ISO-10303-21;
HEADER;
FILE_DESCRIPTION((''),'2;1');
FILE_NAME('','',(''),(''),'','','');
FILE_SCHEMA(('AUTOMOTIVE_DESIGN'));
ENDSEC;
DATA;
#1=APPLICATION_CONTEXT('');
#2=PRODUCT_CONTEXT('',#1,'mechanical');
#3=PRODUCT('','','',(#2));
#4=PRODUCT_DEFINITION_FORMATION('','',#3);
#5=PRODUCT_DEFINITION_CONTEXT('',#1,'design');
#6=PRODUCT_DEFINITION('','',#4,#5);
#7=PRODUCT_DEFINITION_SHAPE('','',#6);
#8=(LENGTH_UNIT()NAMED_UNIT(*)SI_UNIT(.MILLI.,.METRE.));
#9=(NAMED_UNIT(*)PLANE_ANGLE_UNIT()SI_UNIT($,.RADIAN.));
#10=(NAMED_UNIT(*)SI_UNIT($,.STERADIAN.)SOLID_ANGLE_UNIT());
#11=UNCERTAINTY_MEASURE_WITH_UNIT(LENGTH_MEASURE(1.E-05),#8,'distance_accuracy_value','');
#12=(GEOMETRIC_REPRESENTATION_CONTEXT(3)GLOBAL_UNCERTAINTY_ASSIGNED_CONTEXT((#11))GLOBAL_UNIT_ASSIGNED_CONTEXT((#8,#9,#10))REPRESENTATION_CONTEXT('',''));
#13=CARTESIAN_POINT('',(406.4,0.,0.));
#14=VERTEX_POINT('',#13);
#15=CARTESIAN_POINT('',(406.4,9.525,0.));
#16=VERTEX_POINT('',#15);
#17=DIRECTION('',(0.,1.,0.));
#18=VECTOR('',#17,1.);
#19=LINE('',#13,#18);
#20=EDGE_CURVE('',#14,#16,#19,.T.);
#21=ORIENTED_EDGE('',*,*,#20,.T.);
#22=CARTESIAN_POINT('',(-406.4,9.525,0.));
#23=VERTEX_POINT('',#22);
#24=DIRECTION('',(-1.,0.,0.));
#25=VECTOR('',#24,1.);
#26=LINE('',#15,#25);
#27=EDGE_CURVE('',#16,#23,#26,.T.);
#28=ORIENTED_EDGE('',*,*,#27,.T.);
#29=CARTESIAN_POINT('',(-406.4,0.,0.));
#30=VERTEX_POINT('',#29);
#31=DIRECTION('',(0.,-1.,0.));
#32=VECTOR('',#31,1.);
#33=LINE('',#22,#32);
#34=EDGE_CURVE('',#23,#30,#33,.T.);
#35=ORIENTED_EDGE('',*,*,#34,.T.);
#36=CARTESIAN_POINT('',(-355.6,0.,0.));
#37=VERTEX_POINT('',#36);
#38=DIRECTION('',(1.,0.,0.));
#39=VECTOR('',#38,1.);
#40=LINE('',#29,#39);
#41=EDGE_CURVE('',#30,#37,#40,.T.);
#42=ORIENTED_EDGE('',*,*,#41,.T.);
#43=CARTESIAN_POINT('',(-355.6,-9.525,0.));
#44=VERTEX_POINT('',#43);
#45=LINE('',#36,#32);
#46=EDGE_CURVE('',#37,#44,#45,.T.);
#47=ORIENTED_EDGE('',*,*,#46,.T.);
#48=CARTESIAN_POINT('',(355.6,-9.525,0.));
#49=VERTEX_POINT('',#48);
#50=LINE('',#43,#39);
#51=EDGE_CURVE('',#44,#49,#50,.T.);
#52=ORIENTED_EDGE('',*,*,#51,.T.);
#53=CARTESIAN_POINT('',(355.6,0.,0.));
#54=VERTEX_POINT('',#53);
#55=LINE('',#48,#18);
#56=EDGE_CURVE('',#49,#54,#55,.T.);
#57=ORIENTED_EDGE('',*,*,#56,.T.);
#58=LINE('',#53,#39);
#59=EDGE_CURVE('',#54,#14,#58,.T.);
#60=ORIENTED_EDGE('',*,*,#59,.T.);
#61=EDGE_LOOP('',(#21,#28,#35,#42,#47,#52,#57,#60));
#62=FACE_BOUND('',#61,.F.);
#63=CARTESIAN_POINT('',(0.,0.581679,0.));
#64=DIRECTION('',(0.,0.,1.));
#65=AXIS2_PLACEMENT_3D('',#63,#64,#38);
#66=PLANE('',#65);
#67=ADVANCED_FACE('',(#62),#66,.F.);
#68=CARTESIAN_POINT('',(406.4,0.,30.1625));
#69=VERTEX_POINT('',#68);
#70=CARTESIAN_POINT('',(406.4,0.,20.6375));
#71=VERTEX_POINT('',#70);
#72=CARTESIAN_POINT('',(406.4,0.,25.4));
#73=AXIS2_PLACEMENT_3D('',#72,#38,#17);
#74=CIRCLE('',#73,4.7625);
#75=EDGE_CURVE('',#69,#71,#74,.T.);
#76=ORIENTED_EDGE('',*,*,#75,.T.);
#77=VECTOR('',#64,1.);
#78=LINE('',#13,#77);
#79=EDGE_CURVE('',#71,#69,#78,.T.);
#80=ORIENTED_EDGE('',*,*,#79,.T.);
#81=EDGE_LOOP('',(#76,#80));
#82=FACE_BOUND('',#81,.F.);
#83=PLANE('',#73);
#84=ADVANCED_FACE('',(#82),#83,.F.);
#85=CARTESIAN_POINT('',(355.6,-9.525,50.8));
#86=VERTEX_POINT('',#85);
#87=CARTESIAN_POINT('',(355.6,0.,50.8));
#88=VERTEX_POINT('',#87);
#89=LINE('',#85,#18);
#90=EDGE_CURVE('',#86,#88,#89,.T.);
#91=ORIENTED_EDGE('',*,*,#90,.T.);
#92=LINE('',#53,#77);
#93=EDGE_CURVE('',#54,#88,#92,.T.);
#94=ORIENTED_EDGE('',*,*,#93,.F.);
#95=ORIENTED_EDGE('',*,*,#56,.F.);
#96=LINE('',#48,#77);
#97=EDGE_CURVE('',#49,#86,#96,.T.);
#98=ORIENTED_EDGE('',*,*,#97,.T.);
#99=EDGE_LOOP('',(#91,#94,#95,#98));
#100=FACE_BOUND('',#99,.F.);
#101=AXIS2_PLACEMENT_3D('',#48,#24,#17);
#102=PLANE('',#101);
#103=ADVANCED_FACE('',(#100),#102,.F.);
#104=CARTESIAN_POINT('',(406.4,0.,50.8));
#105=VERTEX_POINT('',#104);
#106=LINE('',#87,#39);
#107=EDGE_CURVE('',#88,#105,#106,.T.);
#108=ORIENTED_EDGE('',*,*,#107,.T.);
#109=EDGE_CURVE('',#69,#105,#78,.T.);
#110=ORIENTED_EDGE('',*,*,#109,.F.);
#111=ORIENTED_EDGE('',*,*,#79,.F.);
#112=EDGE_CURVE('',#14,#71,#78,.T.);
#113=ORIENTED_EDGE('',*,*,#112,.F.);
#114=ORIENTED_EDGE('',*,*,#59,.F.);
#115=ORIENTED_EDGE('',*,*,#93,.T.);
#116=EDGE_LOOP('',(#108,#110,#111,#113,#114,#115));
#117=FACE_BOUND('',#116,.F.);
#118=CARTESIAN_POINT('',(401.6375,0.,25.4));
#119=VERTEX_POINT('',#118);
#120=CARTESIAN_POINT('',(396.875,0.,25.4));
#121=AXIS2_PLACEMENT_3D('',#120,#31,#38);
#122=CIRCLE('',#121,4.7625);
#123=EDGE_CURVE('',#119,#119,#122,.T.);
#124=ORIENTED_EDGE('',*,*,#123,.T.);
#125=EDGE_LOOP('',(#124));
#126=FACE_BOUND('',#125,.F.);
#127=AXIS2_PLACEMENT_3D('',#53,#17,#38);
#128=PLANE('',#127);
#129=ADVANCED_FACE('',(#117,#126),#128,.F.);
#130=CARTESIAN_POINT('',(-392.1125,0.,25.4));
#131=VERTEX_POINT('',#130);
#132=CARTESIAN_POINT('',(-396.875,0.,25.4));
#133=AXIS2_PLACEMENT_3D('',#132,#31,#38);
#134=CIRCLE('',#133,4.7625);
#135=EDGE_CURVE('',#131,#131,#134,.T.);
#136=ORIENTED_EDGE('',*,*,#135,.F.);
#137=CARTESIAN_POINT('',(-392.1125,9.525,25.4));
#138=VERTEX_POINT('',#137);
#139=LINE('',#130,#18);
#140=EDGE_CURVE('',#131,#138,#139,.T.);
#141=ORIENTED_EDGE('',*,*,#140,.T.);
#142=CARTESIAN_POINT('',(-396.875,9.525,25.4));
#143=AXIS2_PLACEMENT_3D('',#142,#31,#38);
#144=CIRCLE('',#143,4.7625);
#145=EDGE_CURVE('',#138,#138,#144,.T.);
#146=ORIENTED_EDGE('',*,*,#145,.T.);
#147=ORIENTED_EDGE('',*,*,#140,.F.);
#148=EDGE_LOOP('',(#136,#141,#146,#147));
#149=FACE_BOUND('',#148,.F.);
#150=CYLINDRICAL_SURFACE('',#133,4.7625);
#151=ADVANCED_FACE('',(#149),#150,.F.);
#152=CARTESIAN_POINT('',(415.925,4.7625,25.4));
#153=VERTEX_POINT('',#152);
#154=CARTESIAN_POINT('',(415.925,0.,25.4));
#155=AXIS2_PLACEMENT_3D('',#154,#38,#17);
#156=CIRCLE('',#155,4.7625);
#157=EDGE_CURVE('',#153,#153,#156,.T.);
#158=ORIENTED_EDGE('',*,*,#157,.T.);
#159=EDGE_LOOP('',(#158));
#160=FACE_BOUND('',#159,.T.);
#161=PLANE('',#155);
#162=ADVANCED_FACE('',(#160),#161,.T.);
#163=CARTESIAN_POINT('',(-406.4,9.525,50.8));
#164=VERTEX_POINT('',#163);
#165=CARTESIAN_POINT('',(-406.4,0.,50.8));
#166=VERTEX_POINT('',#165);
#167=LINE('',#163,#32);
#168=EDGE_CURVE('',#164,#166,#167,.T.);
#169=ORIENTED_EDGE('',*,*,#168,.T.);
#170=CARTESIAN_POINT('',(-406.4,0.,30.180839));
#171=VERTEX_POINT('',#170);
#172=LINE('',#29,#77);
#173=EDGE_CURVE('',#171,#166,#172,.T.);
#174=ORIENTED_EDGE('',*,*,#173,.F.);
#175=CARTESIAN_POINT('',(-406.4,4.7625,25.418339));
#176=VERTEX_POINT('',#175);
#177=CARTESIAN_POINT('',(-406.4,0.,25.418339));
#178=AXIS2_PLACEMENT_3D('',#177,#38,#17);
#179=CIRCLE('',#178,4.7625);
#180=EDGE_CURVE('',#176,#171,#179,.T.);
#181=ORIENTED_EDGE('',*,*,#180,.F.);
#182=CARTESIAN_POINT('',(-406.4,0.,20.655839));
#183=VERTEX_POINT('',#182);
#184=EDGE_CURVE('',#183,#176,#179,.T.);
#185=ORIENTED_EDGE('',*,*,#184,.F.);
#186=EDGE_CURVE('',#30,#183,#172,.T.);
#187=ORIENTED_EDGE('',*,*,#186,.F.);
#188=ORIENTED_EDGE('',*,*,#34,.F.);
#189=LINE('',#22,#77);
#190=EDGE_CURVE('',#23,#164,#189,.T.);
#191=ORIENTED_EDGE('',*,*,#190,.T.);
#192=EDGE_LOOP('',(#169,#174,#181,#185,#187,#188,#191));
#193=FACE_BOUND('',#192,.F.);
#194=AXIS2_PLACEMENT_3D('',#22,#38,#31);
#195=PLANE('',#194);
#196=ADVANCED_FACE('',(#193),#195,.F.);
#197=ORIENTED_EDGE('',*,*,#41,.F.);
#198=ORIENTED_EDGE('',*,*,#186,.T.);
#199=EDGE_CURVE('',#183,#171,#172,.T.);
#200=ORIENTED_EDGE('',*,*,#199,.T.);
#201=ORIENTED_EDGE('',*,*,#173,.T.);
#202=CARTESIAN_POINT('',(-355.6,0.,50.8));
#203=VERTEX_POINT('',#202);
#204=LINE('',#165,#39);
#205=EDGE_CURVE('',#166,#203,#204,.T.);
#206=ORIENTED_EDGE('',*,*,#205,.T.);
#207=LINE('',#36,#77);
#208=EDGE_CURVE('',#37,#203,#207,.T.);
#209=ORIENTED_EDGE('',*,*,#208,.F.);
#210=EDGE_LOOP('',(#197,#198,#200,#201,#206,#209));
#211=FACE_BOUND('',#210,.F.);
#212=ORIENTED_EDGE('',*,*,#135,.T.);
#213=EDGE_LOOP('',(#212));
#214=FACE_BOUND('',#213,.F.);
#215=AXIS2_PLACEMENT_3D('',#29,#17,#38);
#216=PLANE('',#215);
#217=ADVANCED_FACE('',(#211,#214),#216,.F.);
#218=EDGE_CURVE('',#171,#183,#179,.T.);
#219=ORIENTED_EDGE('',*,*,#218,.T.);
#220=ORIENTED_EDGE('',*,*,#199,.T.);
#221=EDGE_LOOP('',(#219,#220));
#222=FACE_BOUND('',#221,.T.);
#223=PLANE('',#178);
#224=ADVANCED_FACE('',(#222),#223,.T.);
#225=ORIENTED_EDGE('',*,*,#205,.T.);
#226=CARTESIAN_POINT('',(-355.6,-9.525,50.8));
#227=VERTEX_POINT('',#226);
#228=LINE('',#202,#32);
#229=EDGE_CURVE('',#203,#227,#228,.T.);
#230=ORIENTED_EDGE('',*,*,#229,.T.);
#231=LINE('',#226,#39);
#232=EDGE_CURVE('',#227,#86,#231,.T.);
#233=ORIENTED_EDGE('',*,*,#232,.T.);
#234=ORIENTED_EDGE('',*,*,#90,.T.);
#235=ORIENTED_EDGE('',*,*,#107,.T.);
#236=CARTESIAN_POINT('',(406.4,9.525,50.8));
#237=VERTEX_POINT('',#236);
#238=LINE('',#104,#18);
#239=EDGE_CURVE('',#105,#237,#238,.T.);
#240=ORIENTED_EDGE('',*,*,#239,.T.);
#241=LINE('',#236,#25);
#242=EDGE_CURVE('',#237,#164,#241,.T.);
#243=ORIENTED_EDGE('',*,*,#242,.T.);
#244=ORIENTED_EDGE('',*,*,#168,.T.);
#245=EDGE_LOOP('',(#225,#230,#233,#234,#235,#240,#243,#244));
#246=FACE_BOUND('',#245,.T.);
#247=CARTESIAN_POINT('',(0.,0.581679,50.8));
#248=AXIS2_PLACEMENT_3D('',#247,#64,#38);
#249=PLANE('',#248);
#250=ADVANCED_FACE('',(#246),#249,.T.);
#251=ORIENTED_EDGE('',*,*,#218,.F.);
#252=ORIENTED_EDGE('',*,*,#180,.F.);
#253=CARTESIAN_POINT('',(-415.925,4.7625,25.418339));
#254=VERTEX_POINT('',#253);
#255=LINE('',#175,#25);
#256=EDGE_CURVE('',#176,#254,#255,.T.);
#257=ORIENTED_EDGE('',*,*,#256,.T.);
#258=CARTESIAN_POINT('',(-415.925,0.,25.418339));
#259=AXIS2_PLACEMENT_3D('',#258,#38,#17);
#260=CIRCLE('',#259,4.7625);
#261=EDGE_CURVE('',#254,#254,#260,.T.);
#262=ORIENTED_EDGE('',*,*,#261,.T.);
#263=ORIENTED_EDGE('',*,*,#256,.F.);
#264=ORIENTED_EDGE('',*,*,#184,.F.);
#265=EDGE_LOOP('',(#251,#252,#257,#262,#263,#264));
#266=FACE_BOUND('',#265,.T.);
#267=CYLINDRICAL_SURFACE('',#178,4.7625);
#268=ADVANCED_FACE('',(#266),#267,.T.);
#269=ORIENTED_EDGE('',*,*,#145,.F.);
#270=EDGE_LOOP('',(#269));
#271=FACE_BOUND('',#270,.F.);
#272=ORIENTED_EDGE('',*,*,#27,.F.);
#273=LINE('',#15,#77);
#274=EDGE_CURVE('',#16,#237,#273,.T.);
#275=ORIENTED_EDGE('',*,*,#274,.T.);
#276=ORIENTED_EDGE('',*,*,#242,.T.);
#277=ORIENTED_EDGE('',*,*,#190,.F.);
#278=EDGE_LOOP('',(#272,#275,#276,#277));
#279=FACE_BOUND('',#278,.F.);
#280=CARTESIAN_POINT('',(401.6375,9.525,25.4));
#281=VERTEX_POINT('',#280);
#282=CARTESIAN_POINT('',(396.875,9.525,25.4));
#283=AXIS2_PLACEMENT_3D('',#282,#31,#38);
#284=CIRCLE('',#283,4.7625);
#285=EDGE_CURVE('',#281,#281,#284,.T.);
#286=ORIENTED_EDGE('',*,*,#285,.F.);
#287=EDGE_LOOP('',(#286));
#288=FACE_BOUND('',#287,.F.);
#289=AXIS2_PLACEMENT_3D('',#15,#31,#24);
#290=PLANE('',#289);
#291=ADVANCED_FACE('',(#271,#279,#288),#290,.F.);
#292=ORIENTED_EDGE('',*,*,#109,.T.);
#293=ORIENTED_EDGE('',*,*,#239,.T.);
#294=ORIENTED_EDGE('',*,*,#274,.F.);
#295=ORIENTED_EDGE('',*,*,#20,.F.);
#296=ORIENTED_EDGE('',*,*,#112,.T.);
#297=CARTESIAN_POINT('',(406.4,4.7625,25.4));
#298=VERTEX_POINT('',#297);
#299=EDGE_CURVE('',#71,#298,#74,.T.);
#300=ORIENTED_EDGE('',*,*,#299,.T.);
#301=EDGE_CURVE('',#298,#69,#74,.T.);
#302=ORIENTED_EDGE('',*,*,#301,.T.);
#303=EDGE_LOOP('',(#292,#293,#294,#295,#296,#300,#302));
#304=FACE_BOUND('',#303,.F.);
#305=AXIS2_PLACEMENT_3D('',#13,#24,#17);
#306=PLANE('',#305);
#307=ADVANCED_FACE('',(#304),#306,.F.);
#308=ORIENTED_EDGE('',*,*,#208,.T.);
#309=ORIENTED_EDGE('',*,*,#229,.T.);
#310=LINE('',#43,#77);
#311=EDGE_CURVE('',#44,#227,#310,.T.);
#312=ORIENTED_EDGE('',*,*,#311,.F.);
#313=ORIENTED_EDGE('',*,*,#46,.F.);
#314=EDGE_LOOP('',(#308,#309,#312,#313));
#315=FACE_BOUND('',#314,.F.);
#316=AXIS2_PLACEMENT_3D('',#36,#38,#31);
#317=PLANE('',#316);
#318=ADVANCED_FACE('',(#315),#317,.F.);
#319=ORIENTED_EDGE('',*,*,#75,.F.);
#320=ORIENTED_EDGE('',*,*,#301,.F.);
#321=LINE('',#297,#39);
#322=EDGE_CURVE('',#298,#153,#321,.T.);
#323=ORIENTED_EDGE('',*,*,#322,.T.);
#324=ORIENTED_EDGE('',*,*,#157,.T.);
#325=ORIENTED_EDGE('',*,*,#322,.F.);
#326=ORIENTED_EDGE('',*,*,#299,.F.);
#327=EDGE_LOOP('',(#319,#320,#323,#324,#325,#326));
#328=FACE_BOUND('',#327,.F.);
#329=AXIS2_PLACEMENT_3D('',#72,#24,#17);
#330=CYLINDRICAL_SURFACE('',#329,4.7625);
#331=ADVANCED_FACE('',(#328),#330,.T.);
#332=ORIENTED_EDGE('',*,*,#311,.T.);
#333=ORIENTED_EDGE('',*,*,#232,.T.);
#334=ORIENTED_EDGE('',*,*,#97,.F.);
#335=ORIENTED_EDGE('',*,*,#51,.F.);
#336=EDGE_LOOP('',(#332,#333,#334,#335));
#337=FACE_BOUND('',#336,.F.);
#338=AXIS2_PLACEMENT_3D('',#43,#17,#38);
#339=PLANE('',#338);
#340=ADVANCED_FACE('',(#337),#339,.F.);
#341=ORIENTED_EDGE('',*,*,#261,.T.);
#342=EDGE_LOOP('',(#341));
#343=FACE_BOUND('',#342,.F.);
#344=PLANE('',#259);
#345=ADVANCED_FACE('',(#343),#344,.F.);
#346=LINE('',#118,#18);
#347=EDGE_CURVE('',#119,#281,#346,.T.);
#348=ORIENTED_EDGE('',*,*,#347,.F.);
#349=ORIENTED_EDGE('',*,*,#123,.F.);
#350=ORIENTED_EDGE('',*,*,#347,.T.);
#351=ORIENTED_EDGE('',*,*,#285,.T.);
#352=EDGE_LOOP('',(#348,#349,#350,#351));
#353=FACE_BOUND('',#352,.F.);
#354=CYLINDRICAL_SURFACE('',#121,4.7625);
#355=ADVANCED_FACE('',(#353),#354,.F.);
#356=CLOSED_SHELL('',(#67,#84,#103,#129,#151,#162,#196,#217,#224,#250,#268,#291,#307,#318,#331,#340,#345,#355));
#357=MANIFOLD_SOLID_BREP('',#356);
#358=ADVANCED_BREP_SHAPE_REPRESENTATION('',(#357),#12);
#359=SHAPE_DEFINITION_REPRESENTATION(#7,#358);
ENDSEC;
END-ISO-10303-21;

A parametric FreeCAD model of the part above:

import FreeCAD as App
import Part
import Sketcher

V = App.Vector
Q = App.Units.Quantity

doc = App.newDocument("Part")
body = doc.addObject("PartDesign::Body", "Body")

sketch1 = doc.addObject("Sketcher::SketchObject", "Sketch")
body.addObject(sketch1)
sketch1.AttachmentSupport = (doc.XY_Plane, [""])
sketch1.MapMode = "FlatFace"
sketch1.addGeometry([
    Part.LineSegment(V(-355.6, 0, 0), V(-355.6, -9.525, 0)),
    Part.LineSegment(V(-355.6, -9.525, 0), V(355.6, -9.525, 0)),
    Part.LineSegment(V(355.6, -9.525, 0), V(355.6, 0, 0)),
    Part.LineSegment(V(355.6, 0, 0), V(406.4, 0, 0)),
    Part.LineSegment(V(406.4, 0, 0), V(406.4, 9.525, 0)),
    Part.LineSegment(V(406.4, 9.525, 0), V(-406.4, 9.525, 0)),
    Part.LineSegment(V(-406.4, 9.525, 0), V(-406.4, 0, 0)),
    Part.LineSegment(V(-406.4, 0, 0), V(-355.6, 0, 0)),
], False)
sketch1.addConstraint([
    Sketcher.Constraint("Coincident", 0, 2, 1, 1),
    Sketcher.Constraint("Coincident", 1, 2, 2, 1),
    Sketcher.Constraint("Coincident", 2, 2, 3, 1),
    Sketcher.Constraint("Coincident", 3, 2, 4, 1),
    Sketcher.Constraint("Coincident", 4, 2, 5, 1),
    Sketcher.Constraint("Coincident", 5, 2, 6, 1),
    Sketcher.Constraint("Coincident", 6, 2, 7, 1),
    Sketcher.Constraint("Coincident", 7, 2, 0, 1),
    Sketcher.Constraint("Vertical", 0),
    Sketcher.Constraint("Horizontal", 1),
    Sketcher.Constraint("Vertical", 2),
    Sketcher.Constraint("Horizontal", 3),
    Sketcher.Constraint("Vertical", 4),
    Sketcher.Constraint("Horizontal", 5),
    Sketcher.Constraint("Vertical", 6),
    Sketcher.Constraint("Horizontal", 7),
    Sketcher.Constraint("Symmetric", 3, 2, 6, 2, -1, 1),
    Sketcher.Constraint("Symmetric", 2, 2, 7, 2, -2),
    Sketcher.Constraint("Equal", 2, 4),
    Sketcher.Constraint("DistanceX", 1, 1, 1, 2, Q("28 in")),
    Sketcher.Constraint("DistanceX", 3, 1, 3, 2, Q("2 in")),
    Sketcher.Constraint("DistanceY", 0, 2, 0, 1, Q("0.375 in")),
])
pad1 = doc.addObject("PartDesign::Pad", "Pad")
body.addObject(pad1)
pad1.Profile = sketch1
pad1.Length = Q("2 in")

sketch2 = doc.addObject("Sketcher::SketchObject", "Sketch001")
body.addObject(sketch2)
sketch2.AttachmentSupport = (doc.YZ_Plane, [""])
sketch2.MapMode = "FlatFace"
sketch2.AttachmentOffset = App.Placement(V(0, 0, 16 * 25.4), App.Rotation())
sketch2.addGeometry(Part.Circle(V(0, 25.4, 0), V(0, 0, 1), 4.7625), False)
sketch2.addConstraint([
    Sketcher.Constraint("PointOnObject", 0, 3, -2),
    Sketcher.Constraint("Diameter", 0, Q("0.375 in")),
    Sketcher.Constraint("DistanceY", -1, 1, 0, 3, Q("1 in")),
])
pad2 = doc.addObject("PartDesign::Pad", "Pad001")
body.addObject(pad2)
pad2.Profile = sketch2
pad2.Length = Q("0.375 in")

sketch3 = doc.addObject("Sketcher::SketchObject", "Sketch002")
body.addObject(sketch3)
sketch3.AttachmentSupport = (doc.YZ_Plane, [""])
sketch3.MapMode = "FlatFace"
sketch3.AttachmentOffset = App.Placement(V(0, 0, -16 * 25.4), App.Rotation())
sketch3.addGeometry(Part.Circle(V(0, 25.418339, 0), V(0, 0, 1), 4.7625), False)
sketch3.addConstraint([
    Sketcher.Constraint("PointOnObject", 0, 3, -2),
    Sketcher.Constraint("Diameter", 0, Q("0.375 in")),
    Sketcher.Constraint("DistanceY", -1, 1, 0, 3, 25.418339),
])
pad3 = doc.addObject("PartDesign::Pad", "Pad002")
body.addObject(pad3)
pad3.Profile = sketch3
pad3.Length = Q("0.375 in")
pad3.Reversed = True

sketch4 = doc.addObject("Sketcher::SketchObject", "Sketch003")
body.addObject(sketch4)
sketch4.AttachmentSupport = (doc.XZ_Plane, [""])
sketch4.MapMode = "FlatFace"
sketch4.addGeometry([
    Part.Circle(V(-396.875, 25.4, 0), V(0, 0, 1), 4.7625),
    Part.Circle(V(396.875, 25.4, 0), V(0, 0, 1), 4.7625),
], False)
sketch4.addConstraint([
    Sketcher.Constraint("Equal", 0, 1),
    Sketcher.Constraint("Symmetric", 0, 3, 1, 3, -2),
    Sketcher.Constraint("Diameter", 0, Q("0.375 in")),
    Sketcher.Constraint("DistanceY", -1, 1, 0, 3, Q("1 in")),
    Sketcher.Constraint("DistanceX", 0, 3, 1, 3, Q("31.25 in")),
])
pocket1 = doc.addObject("PartDesign::Pocket", "Pocket")
body.addObject(pocket1)
pocket1.Profile = sketch4
pocket1.Length = Q("1 in")

doc.recompute()
